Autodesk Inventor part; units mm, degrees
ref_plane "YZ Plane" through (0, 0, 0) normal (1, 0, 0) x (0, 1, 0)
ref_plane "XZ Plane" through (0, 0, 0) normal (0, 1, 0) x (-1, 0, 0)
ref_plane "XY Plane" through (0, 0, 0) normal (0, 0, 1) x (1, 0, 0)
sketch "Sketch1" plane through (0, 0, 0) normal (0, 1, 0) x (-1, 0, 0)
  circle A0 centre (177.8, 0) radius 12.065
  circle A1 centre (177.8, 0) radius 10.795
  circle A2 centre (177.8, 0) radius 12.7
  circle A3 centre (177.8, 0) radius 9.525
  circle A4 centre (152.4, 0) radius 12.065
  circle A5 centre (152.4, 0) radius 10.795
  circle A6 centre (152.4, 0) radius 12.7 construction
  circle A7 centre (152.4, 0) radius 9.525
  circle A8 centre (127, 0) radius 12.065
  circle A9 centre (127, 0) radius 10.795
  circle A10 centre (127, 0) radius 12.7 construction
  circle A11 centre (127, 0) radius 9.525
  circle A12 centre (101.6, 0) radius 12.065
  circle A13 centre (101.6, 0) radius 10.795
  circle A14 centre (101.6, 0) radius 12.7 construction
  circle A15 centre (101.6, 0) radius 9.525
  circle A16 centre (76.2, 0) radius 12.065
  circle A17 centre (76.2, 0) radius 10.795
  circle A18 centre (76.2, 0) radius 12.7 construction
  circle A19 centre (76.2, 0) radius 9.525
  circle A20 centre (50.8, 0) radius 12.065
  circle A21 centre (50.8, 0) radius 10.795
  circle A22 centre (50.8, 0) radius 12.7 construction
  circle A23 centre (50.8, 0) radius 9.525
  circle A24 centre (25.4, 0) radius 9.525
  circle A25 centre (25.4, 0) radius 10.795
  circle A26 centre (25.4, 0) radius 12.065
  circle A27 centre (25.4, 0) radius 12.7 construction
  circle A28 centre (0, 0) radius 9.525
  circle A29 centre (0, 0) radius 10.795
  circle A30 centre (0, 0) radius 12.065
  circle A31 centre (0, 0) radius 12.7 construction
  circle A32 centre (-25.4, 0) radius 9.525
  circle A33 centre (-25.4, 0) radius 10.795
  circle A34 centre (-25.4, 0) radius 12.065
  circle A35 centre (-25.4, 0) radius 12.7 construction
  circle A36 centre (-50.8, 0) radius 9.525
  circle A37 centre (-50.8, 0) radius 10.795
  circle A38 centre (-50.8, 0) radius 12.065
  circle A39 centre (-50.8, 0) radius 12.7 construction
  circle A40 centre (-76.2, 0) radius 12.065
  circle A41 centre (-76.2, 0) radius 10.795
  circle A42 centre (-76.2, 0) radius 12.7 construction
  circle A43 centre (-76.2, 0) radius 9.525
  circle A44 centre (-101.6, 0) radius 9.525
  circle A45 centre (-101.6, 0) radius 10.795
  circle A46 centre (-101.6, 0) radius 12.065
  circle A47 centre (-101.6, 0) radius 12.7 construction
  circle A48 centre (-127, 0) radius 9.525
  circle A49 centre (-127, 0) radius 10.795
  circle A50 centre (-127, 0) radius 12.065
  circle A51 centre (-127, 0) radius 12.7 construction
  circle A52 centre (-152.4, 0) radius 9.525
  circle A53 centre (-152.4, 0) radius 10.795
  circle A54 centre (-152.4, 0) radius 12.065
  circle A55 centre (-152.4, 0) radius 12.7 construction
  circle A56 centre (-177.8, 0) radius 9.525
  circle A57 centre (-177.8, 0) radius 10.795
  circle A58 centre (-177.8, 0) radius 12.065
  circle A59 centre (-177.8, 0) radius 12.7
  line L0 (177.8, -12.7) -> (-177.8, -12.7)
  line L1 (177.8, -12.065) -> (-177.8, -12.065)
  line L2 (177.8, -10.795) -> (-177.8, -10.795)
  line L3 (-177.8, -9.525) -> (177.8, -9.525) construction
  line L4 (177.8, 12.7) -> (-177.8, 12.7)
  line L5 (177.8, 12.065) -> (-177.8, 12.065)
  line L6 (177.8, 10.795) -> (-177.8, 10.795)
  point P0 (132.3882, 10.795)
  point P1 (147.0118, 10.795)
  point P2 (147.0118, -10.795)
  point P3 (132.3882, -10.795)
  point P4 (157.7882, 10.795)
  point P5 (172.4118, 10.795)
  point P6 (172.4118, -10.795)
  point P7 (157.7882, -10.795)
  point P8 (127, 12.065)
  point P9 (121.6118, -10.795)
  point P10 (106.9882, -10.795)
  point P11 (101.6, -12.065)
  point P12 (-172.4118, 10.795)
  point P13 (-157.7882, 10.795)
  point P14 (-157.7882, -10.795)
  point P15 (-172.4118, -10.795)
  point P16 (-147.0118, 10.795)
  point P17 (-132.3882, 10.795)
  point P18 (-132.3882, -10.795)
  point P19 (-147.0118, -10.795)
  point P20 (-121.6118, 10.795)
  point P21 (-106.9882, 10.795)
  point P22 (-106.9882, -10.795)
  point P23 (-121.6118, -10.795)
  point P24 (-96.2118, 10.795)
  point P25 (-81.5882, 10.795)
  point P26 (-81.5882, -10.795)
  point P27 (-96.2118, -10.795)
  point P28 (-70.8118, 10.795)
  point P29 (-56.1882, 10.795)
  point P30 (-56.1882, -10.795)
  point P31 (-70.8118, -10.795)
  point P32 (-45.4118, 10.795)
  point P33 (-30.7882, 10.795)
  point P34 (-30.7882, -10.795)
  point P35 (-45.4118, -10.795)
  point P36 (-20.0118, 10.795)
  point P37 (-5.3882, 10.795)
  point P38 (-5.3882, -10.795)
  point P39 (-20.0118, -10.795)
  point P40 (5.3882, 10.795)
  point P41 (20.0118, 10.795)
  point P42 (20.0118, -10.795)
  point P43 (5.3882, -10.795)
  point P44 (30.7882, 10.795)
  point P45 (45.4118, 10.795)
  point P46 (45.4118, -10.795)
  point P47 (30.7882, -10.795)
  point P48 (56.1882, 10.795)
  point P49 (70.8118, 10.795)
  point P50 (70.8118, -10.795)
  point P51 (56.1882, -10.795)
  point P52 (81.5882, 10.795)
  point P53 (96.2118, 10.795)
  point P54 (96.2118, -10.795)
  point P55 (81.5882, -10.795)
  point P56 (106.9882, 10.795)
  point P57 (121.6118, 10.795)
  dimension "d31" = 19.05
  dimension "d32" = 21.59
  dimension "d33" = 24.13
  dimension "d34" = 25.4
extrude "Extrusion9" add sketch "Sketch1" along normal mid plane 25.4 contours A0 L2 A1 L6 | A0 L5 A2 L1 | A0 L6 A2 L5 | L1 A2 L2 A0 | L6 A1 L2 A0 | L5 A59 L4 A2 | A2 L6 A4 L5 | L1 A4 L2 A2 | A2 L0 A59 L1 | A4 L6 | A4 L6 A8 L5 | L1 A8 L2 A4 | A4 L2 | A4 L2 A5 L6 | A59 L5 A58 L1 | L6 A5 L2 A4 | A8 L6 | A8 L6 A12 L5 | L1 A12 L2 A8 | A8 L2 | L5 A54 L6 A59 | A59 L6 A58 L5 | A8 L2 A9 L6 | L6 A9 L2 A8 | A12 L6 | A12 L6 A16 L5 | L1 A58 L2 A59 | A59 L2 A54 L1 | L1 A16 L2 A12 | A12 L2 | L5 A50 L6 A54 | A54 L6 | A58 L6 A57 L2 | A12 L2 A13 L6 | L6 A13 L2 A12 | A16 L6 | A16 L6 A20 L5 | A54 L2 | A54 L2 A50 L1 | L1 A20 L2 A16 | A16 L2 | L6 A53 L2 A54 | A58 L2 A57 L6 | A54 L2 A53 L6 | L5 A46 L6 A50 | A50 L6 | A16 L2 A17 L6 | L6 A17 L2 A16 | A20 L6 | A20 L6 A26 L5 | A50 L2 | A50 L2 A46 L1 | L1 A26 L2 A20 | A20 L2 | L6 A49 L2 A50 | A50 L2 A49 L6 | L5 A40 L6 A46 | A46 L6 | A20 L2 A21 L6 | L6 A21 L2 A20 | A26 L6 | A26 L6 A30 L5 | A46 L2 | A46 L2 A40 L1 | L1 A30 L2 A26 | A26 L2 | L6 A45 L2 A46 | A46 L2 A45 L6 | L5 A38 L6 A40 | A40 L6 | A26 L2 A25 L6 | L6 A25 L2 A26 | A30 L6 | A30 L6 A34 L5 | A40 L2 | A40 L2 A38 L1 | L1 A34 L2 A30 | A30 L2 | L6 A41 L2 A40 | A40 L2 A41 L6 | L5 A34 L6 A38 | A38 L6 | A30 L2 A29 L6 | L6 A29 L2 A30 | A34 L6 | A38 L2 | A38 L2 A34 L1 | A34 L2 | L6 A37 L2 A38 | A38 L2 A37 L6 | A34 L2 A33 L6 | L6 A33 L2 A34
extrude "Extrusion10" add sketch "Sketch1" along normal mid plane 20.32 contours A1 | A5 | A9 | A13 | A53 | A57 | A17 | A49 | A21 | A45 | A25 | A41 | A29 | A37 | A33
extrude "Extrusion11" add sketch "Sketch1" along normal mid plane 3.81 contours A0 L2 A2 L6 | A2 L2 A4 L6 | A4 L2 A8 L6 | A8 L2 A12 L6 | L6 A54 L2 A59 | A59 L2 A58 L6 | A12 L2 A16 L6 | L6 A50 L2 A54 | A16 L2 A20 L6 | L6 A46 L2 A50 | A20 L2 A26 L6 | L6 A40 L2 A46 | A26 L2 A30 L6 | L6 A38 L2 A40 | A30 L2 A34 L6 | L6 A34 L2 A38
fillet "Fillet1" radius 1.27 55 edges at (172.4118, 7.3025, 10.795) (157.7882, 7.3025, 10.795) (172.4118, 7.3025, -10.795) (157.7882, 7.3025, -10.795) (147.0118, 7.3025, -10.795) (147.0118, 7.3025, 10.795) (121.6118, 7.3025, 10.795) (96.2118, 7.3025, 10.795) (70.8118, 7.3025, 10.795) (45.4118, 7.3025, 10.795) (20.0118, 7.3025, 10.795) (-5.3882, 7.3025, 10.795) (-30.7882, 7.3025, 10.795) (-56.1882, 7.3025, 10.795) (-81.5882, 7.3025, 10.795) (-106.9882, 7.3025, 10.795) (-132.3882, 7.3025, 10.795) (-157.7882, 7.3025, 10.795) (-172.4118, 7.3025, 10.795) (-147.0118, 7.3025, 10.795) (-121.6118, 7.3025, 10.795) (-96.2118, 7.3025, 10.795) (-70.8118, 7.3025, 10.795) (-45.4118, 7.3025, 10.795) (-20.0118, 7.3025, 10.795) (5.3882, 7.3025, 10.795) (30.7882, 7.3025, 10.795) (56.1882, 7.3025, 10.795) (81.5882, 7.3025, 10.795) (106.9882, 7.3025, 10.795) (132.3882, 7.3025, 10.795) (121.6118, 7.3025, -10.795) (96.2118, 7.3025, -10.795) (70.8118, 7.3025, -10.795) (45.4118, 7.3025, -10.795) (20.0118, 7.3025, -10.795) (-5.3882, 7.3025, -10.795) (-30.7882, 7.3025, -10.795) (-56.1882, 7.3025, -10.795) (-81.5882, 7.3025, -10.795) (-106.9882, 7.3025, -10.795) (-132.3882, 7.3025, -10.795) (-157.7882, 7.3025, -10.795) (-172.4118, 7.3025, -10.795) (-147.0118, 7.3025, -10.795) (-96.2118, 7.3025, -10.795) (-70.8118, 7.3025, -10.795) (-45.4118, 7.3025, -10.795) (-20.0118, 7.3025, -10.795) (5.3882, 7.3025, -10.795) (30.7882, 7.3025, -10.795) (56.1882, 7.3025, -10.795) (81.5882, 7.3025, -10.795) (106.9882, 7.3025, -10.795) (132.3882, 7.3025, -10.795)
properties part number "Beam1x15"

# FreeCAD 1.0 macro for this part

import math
import FreeCAD as App
import Part
import Sketcher
from FreeCAD import Vector
Q = App.Units.Quantity


def edges_at(feature, points):
    """Names of the edges that pass closest to the given points."""
    edges = feature.Shape.Edges
    near = lambda p: min(range(len(edges)), key=lambda i: edges[i].distToShape(Part.Vertex(*p))[0])
    return sorted({f"Edge{near(p) + 1}" for p in points})

doc = App.newDocument("Part")
params = doc.addObject("Spreadsheet::Sheet", "Params")
for row, (alias, value) in enumerate([
    ("sketch1_radius", "0.5 in"),
    ("sketch1_diameter", "0.85 in"),
    ("sketch1_radius2", "0.475 in"),
    ("pad1_length", "1 in"),
    ("sketch2_diameter", "0.85 in"),
    ("sketch2_diameter2", "0.75 in"),
    ("pad2_length", "0.8 in"),
    ("sketch3_radius", "0.475 in"),
    ("pad3_length", "0.15 in"),
    ("fillet_radius", "0.05 in"),
], start=1):
    params.set(f"A{row}", alias)
    params.set(f"B{row}", "=" + value)
    params.setAlias(f"B{row}", alias)

body = doc.addObject("PartDesign::Body", "Body")

# Sketch on XZ plane
sketch1 = body.newObject("Sketcher::SketchObject", "Sketch")
sketch1.AttachmentSupport = (doc.getObject("XZ_Plane"), [""])
sketch1.MapMode = "FlatFace"
sketch1.addGeometry([
    Part.LineSegment(Vector(-178, 13, 0), Vector(178, 13, 0)),  # 0
    Part.ArcOfCircle(Part.Circle(Vector(178, 0, 0), Vector(0, 0, 1), 13), math.radians(-90), math.radians(90)),  # 1
    Part.LineSegment(Vector(178, -13, 0), Vector(-178, -13, 0)),  # 2
    Part.ArcOfCircle(Part.Circle(Vector(-178, 0, 0), Vector(0, 0, 1), 13), math.radians(90), math.radians(270)),  # 3
    Part.Circle(Vector(-178, 0, 0), Vector(0, 0, 1), 11),  # 4
    Part.LineSegment(Vector(-172, -11, 0), Vector(-158, -11, 0)),  # 5
    Part.ArcOfCircle(Part.Circle(Vector(-152, 0, 0), Vector(0, 0, 1), 12), math.radians(117), math.radians(243)),  # 6
    Part.LineSegment(Vector(-158, 11, 0), Vector(-172, 11, 0)),  # 7
    Part.ArcOfCircle(Part.Circle(Vector(-178, 0, 0), Vector(0, 0, 1), 12), math.radians(-63), math.radians(63)),  # 8
    Part.LineSegment(Vector(-132, 11, 0), Vector(-147, 11, 0)),  # 9
    Part.ArcOfCircle(Part.Circle(Vector(-152, 0, 0), Vector(0, 0, 1), 12), math.radians(-63), math.radians(63)),  # 10
    Part.LineSegment(Vector(-147, -11, 0), Vector(-132, -11, 0)),  # 11
    Part.ArcOfCircle(Part.Circle(Vector(-127, 0, 0), Vector(0, 0, 1), 12), math.radians(117), math.radians(243)),  # 12
    Part.LineSegment(Vector(-107, 11, 0), Vector(-122, 11, 0)),  # 13
    Part.ArcOfCircle(Part.Circle(Vector(-127, 0, 0), Vector(0, 0, 1), 12), math.radians(-63), math.radians(63)),  # 14
    Part.LineSegment(Vector(-122, -11, 0), Vector(-107, -11, 0)),  # 15
    Part.ArcOfCircle(Part.Circle(Vector(-102, 0, 0), Vector(0, 0, 1), 12), math.radians(117), math.radians(243)),  # 16
    Part.LineSegment(Vector(-82, 11, 0), Vector(-96, 11, 0)),  # 17
    Part.ArcOfCircle(Part.Circle(Vector(-102, 0, 0), Vector(0, 0, 1), 12), math.radians(-63), math.radians(63)),  # 18
    Part.LineSegment(Vector(-96, -11, 0), Vector(-82, -11, 0)),  # 19
    Part.ArcOfCircle(Part.Circle(Vector(-76, 0, 0), Vector(0, 0, 1), 12), math.radians(117), math.radians(243)),  # 20
    Part.LineSegment(Vector(-56, 11, 0), Vector(-71, 11, 0)),  # 21
    Part.ArcOfCircle(Part.Circle(Vector(-76, 0, 0), Vector(0, 0, 1), 12), math.radians(-63), math.radians(63)),  # 22
    Part.LineSegment(Vector(-71, -11, 0), Vector(-56, -11, 0)),  # 23
    Part.ArcOfCircle(Part.Circle(Vector(-51, 0, 0), Vector(0, 0, 1), 12), math.radians(117), math.radians(243)),  # 24
    Part.LineSegment(Vector(-31, 11, 0), Vector(-45, 11, 0)),  # 25
    Part.ArcOfCircle(Part.Circle(Vector(-51, 0, 0), Vector(0, 0, 1), 12), math.radians(-63), math.radians(63)),  # 26
    Part.LineSegment(Vector(-45, -11, 0), Vector(-31, -11, 0)),  # 27
    Part.ArcOfCircle(Part.Circle(Vector(-25, 0, 0), Vector(0, 0, 1), 12), math.radians(117), math.radians(243)),  # 28
    Part.LineSegment(Vector(-5, 11, 0), Vector(-20, 11, 0)),  # 29
    Part.ArcOfCircle(Part.Circle(Vector(-25, 0, 0), Vector(0, 0, 1), 12), math.radians(-63), math.radians(63)),  # 30
    Part.LineSegment(Vector(-20, -11, 0), Vector(-5, -11, 0)),  # 31
    Part.ArcOfCircle(Part.Circle(Vector(0, 0, 0), Vector(0, 0, 1), 12), math.radians(117), math.radians(243)),  # 32
    Part.LineSegment(Vector(20, 11, 0), Vector(5, 11, 0)),  # 33
    Part.ArcOfCircle(Part.Circle(Vector(0, 0, 0), Vector(0, 0, 1), 12), math.radians(-63), math.radians(63)),  # 34
    Part.LineSegment(Vector(5, -11, 0), Vector(20, -11, 0)),  # 35
    Part.ArcOfCircle(Part.Circle(Vector(25, 0, 0), Vector(0, 0, 1), 12), math.radians(117), math.radians(243)),  # 36
    Part.LineSegment(Vector(45, 11, 0), Vector(31, 11, 0)),  # 37
    Part.ArcOfCircle(Part.Circle(Vector(25, 0, 0), Vector(0, 0, 1), 12), math.radians(-63), math.radians(63)),  # 38
    Part.LineSegment(Vector(31, -11, 0), Vector(45, -11, 0)),  # 39
    Part.ArcOfCircle(Part.Circle(Vector(51, 0, 0), Vector(0, 0, 1), 12), math.radians(117), math.radians(243)),  # 40
    Part.LineSegment(Vector(71, 11, 0), Vector(56, 11, 0)),  # 41
    Part.ArcOfCircle(Part.Circle(Vector(51, 0, 0), Vector(0, 0, 1), 12), math.radians(-63), math.radians(63)),  # 42
    Part.LineSegment(Vector(56, -11, 0), Vector(71, -11, 0)),  # 43
    Part.ArcOfCircle(Part.Circle(Vector(76, 0, 0), Vector(0, 0, 1), 12), math.radians(117), math.radians(243)),  # 44
    Part.LineSegment(Vector(96, 11, 0), Vector(82, 11, 0)),  # 45
    Part.ArcOfCircle(Part.Circle(Vector(76, 0, 0), Vector(0, 0, 1), 12), math.radians(-63), math.radians(63)),  # 46
    Part.LineSegment(Vector(82, -11, 0), Vector(96, -11, 0)),  # 47
    Part.ArcOfCircle(Part.Circle(Vector(102, 0, 0), Vector(0, 0, 1), 12), math.radians(117), math.radians(243)),  # 48
    Part.LineSegment(Vector(122, 11, 0), Vector(107, 11, 0)),  # 49
    Part.ArcOfCircle(Part.Circle(Vector(102, 0, 0), Vector(0, 0, 1), 12), math.radians(-63), math.radians(63)),  # 50
    Part.LineSegment(Vector(107, -11, 0), Vector(122, -11, 0)),  # 51
    Part.ArcOfCircle(Part.Circle(Vector(127, 0, 0), Vector(0, 0, 1), 12), math.radians(117), math.radians(243)),  # 52
    Part.LineSegment(Vector(147, 11, 0), Vector(132, 11, 0)),  # 53
    Part.ArcOfCircle(Part.Circle(Vector(127, 0, 0), Vector(0, 0, 1), 12), math.radians(-63), math.radians(63)),  # 54
    Part.LineSegment(Vector(132, -11, 0), Vector(147, -11, 0)),  # 55
    Part.ArcOfCircle(Part.Circle(Vector(152, 0, 0), Vector(0, 0, 1), 12), math.radians(117), math.radians(243)),  # 56
    Part.ArcOfCircle(Part.Circle(Vector(152, 0, 0), Vector(0, 0, 1), 12), math.radians(-63), math.radians(63)),  # 57
    Part.LineSegment(Vector(158, -11, 0), Vector(172, -11, 0)),  # 58
    Part.ArcOfCircle(Part.Circle(Vector(178, 0, 0), Vector(0, 0, 1), 12), math.radians(117), math.radians(243)),  # 59
    Part.LineSegment(Vector(172, 11, 0), Vector(158, 11, 0)),  # 60
    Part.Circle(Vector(178, 0, 0), Vector(0, 0, 1), 11),  # 61
    Part.Circle(Vector(-152, 0, 0), Vector(0, 0, 1), 11),  # 62
    Part.Circle(Vector(-127, 0, 0), Vector(0, 0, 1), 11),  # 63
    Part.Circle(Vector(-102, 0, 0), Vector(0, 0, 1), 11),  # 64
    Part.Circle(Vector(-76, 0, 0), Vector(0, 0, 1), 11),  # 65
    Part.Circle(Vector(-51, 0, 0), Vector(0, 0, 1), 11),  # 66
    Part.Circle(Vector(-25, 0, 0), Vector(0, 0, 1), 11),  # 67
    Part.Circle(Vector(0, 0, 0), Vector(0, 0, 1), 11),  # 68
    Part.Circle(Vector(25, 0, 0), Vector(0, 0, 1), 11),  # 69
    Part.Circle(Vector(51, 0, 0), Vector(0, 0, 1), 11),  # 70
    Part.Circle(Vector(76, 0, 0), Vector(0, 0, 1), 11),  # 71
    Part.Circle(Vector(102, 0, 0), Vector(0, 0, 1), 11),  # 72
    Part.Circle(Vector(127, 0, 0), Vector(0, 0, 1), 11),  # 73
    Part.Circle(Vector(152, 0, 0), Vector(0, 0, 1), 11),  # 74
], False)
sketch1.addConstraint([
    Sketcher.Constraint("Tangent", 0, 2, 1, 2),
    Sketcher.Constraint("Tangent", 1, 1, 2, 1),
    Sketcher.Constraint("Tangent", 2, 2, 3, 2),
    Sketcher.Constraint("Tangent", 3, 1, 0, 1),
    Sketcher.Constraint("Coincident", 5, 2, 6, 2),
    Sketcher.Constraint("Coincident", 6, 1, 7, 1),
    Sketcher.Constraint("Coincident", 7, 2, 8, 2),
    Sketcher.Constraint("Coincident", 8, 1, 5, 1),
    Sketcher.Constraint("Coincident", 9, 2, 10, 2),
    Sketcher.Constraint("Coincident", 10, 1, 11, 1),
    Sketcher.Constraint("Coincident", 11, 2, 12, 2),
    Sketcher.Constraint("Coincident", 12, 1, 9, 1),
    Sketcher.Constraint("Coincident", 13, 2, 14, 2),
    Sketcher.Constraint("Coincident", 14, 1, 15, 1),
    Sketcher.Constraint("Coincident", 15, 2, 16, 2),
    Sketcher.Constraint("Coincident", 16, 1, 13, 1),
    Sketcher.Constraint("Coincident", 17, 2, 18, 2),
    Sketcher.Constraint("Coincident", 18, 1, 19, 1),
    Sketcher.Constraint("Coincident", 19, 2, 20, 2),
    Sketcher.Constraint("Coincident", 20, 1, 17, 1),
    Sketcher.Constraint("Coincident", 21, 2, 22, 2),
    Sketcher.Constraint("Coincident", 22, 1, 23, 1),
    Sketcher.Constraint("Coincident", 23, 2, 24, 2),
    Sketcher.Constraint("Coincident", 24, 1, 21, 1),
    Sketcher.Constraint("Coincident", 25, 2, 26, 2),
    Sketcher.Constraint("Coincident", 26, 1, 27, 1),
    Sketcher.Constraint("Coincident", 27, 2, 28, 2),
    Sketcher.Constraint("Coincident", 28, 1, 25, 1),
    Sketcher.Constraint("Coincident", 29, 2, 30, 2),
    Sketcher.Constraint("Coincident", 30, 1, 31, 1),
    Sketcher.Constraint("Coincident", 31, 2, 32, 2),
    Sketcher.Constraint("Coincident", 32, 1, 29, 1),
    Sketcher.Constraint("Coincident", 33, 2, 34, 2),
    Sketcher.Constraint("Coincident", 34, 1, 35, 1),
    Sketcher.Constraint("Coincident", 35, 2, 36, 2),
    Sketcher.Constraint("Coincident", 36, 1, 33, 1),
    Sketcher.Constraint("Coincident", 37, 2, 38, 2),
    Sketcher.Constraint("Coincident", 38, 1, 39, 1),
    Sketcher.Constraint("Coincident", 39, 2, 40, 2),
    Sketcher.Constraint("Coincident", 40, 1, 37, 1),
    Sketcher.Constraint("Coincident", 41, 2, 42, 2),
    Sketcher.Constraint("Coincident", 42, 1, 43, 1),
    Sketcher.Constraint("Coincident", 43, 2, 44, 2),
    Sketcher.Constraint("Coincident", 44, 1, 41, 1),
    Sketcher.Constraint("Coincident", 45, 2, 46, 2),
    Sketcher.Constraint("Coincident", 46, 1, 47, 1),
    Sketcher.Constraint("Coincident", 47, 2, 48, 2),
    Sketcher.Constraint("Coincident", 48, 1, 45, 1),
    Sketcher.Constraint("Coincident", 49, 2, 50, 2),
    Sketcher.Constraint("Coincident", 50, 1, 51, 1),
    Sketcher.Constraint("Coincident", 51, 2, 52, 2),
    Sketcher.Constraint("Coincident", 52, 1, 49, 1),
    Sketcher.Constraint("Coincident", 53, 2, 54, 2),
    Sketcher.Constraint("Coincident", 54, 1, 55, 1),
    Sketcher.Constraint("Coincident", 55, 2, 56, 2),
    Sketcher.Constraint("Coincident", 56, 1, 53, 1),
    Sketcher.Constraint("Coincident", 57, 1, 58, 1),
    Sketcher.Constraint("Coincident", 58, 2, 59, 2),
    Sketcher.Constraint("Coincident", 59, 1, 60, 1),
    Sketcher.Constraint("Coincident", 60, 2, 57, 2),
    Sketcher.Constraint("Horizontal", 0),
    Sketcher.Constraint("Horizontal", 2),
    Sketcher.Constraint("Horizontal", 5),
    Sketcher.Constraint("Horizontal", 7),
    Sketcher.Constraint("Horizontal", 9),
    Sketcher.Constraint("Horizontal", 11),
    Sketcher.Constraint("Horizontal", 13),
    Sketcher.Constraint("Horizontal", 15),
    Sketcher.Constraint("Horizontal", 17),
    Sketcher.Constraint("Horizontal", 19),
    Sketcher.Constraint("Horizontal", 21),
    Sketcher.Constraint("Horizontal", 23),
    Sketcher.Constraint("Horizontal", 25),
    Sketcher.Constraint("Horizontal", 27),
    Sketcher.Constraint("Horizontal", 29),
    Sketcher.Constraint("Horizontal", 31),
    Sketcher.Constraint("Horizontal", 33),
    Sketcher.Constraint("Horizontal", 35),
    Sketcher.Constraint("Horizontal", 37),
    Sketcher.Constraint("Horizontal", 39),
    Sketcher.Constraint("Horizontal", 41),
    Sketcher.Constraint("Horizontal", 43),
    Sketcher.Constraint("Horizontal", 45),
    Sketcher.Constraint("Horizontal", 47),
    Sketcher.Constraint("Horizontal", 49),
    Sketcher.Constraint("Horizontal", 51),
    Sketcher.Constraint("Horizontal", 53),
    Sketcher.Constraint("Horizontal", 55),
    Sketcher.Constraint("Horizontal", 58),
    Sketcher.Constraint("Horizontal", 60),
    Sketcher.Constraint("Coincident", 32, 3, -1, 1),
    Sketcher.Constraint("Coincident", 34, 3, -1, 1),
    Sketcher.Constraint("Coincident", 68, 3, -1, 1),
    Sketcher.Constraint("Coincident", 4, 3, 3, 3),
    Sketcher.Constraint("Coincident", 8, 3, 3, 3),
    Sketcher.Constraint("Coincident", 10, 3, 6, 3),
    Sketcher.Constraint("Coincident", 14, 3, 12, 3),
    Sketcher.Constraint("Coincident", 18, 3, 16, 3),
    Sketcher.Constraint("Coincident", 22, 3, 20, 3),
    Sketcher.Constraint("Coincident", 26, 3, 24, 3),
    Sketcher.Constraint("Coincident", 30, 3, 28, 3),
    Sketcher.Constraint("Coincident", 38, 3, 36, 3),
    Sketcher.Constraint("Coincident", 42, 3, 40, 3),
    Sketcher.Constraint("Coincident", 46, 3, 44, 3),
    Sketcher.Constraint("Coincident", 50, 3, 48, 3),
    Sketcher.Constraint("Coincident", 54, 3, 52, 3),
    Sketcher.Constraint("Coincident", 57, 3, 56, 3),
    Sketcher.Constraint("Coincident", 59, 3, 1, 3),
    Sketcher.Constraint("Coincident", 61, 3, 1, 3),
    Sketcher.Constraint("Coincident", 62, 3, 6, 3),
    Sketcher.Constraint("Coincident", 63, 3, 12, 3),
    Sketcher.Constraint("Coincident", 64, 3, 16, 3),
    Sketcher.Constraint("Coincident", 65, 3, 20, 3),
    Sketcher.Constraint("Coincident", 66, 3, 24, 3),
    Sketcher.Constraint("Coincident", 67, 3, 28, 3),
    Sketcher.Constraint("Coincident", 69, 3, 36, 3),
    Sketcher.Constraint("Coincident", 70, 3, 40, 3),
    Sketcher.Constraint("Coincident", 71, 3, 44, 3),
    Sketcher.Constraint("Coincident", 72, 3, 48, 3),
    Sketcher.Constraint("Coincident", 73, 3, 52, 3),
    Sketcher.Constraint("Coincident", 74, 3, 56, 3),
    Sketcher.Constraint("Equal", 6, 8),
    Sketcher.Constraint("Equal", 8, 10),
    Sketcher.Constraint("Equal", 10, 12),
    Sketcher.Constraint("Equal", 12, 14),
    Sketcher.Constraint("Equal", 14, 16),
    Sketcher.Constraint("Equal", 16, 18),
    Sketcher.Constraint("Equal", 18, 20),
    Sketcher.Constraint("Equal", 20, 22),
    Sketcher.Constraint("Equal", 22, 24),
    Sketcher.Constraint("Equal", 24, 26),
    Sketcher.Constraint("Equal", 26, 28),
    Sketcher.Constraint("Equal", 28, 30),
    Sketcher.Constraint("Equal", 30, 32),
    Sketcher.Constraint("Equal", 32, 34),
    Sketcher.Constraint("Equal", 34, 36),
    Sketcher.Constraint("Equal", 36, 38),
    Sketcher.Constraint("Equal", 38, 40),
    Sketcher.Constraint("Equal", 40, 42),
    Sketcher.Constraint("Equal", 42, 44),
    Sketcher.Constraint("Equal", 44, 46),
    Sketcher.Constraint("Equal", 46, 48),
    Sketcher.Constraint("Equal", 48, 50),
    Sketcher.Constraint("Equal", 50, 52),
    Sketcher.Constraint("Equal", 52, 54),
    Sketcher.Constraint("Equal", 54, 56),
    Sketcher.Constraint("Equal", 56, 57),
    Sketcher.Constraint("Equal", 57, 59),
    Sketcher.Constraint("Equal", 4, 61),
    Sketcher.Constraint("Equal", 61, 62),
    Sketcher.Constraint("Equal", 62, 63),
    Sketcher.Constraint("Equal", 63, 64),
    Sketcher.Constraint("Equal", 64, 65),
    Sketcher.Constraint("Equal", 65, 66),
    Sketcher.Constraint("Equal", 66, 67),
    Sketcher.Constraint("Equal", 67, 68),
    Sketcher.Constraint("Equal", 68, 69),
    Sketcher.Constraint("Equal", 69, 70),
    Sketcher.Constraint("Equal", 70, 71),
    Sketcher.Constraint("Equal", 71, 72),
    Sketcher.Constraint("Equal", 72, 73),
    Sketcher.Constraint("Equal", 73, 74),
    Sketcher.Constraint("Symmetric", 1, 3, 3, 3, -1, 1),
    Sketcher.Constraint("Symmetric", 28, 3, 36, 3, -1, 1),
    Sketcher.Constraint("Symmetric", 24, 3, 40, 3, -1, 1),
    Sketcher.Constraint("Symmetric", 20, 3, 44, 3, -1, 1),
    Sketcher.Constraint("Symmetric", 16, 3, 48, 3, -1, 1),
    Sketcher.Constraint("Symmetric", 12, 3, 52, 3, -1, 1),
    Sketcher.Constraint("Symmetric", 6, 3, 56, 3, -1, 1),
    Sketcher.Constraint("Symmetric", 30, 1, 35, 2, -2),
    Sketcher.Constraint("Symmetric", 26, 1, 39, 2, -2),
    Sketcher.Constraint("Symmetric", 22, 1, 43, 2, -2),
    Sketcher.Constraint("Symmetric", 18, 1, 47, 2, -2),
    Sketcher.Constraint("Symmetric", 14, 1, 51, 2, -2),
    Sketcher.Constraint("Symmetric", 10, 1, 55, 2, -2),
    Sketcher.Constraint("Horizontal", 7, 2, 9, 2),
    Sketcher.Constraint("Horizontal", 8, 1, 10, 1),
    Sketcher.Constraint("Horizontal", 12, 1, 13, 2),
    Sketcher.Constraint("Horizontal", 11, 2, 14, 1),
    Sketcher.Constraint("Horizontal", 16, 1, 17, 2),
    Sketcher.Constraint("Horizontal", 15, 2, 18, 1),
    Sketcher.Constraint("Horizontal", 20, 1, 21, 2),
    Sketcher.Constraint("Horizontal", 19, 2, 22, 1),
    Sketcher.Constraint("Horizontal", 24, 1, 25, 2),
    Sketcher.Constraint("Horizontal", 23, 2, 26, 1),
    Sketcher.Constraint("Horizontal", 28, 1, 29, 2),
    Sketcher.Constraint("Horizontal", 27, 2, 30, 1),
    Sketcher.Constraint("Horizontal", 32, 1, 33, 2),
    Sketcher.Constraint("Horizontal", 36, 1, 37, 2),
    Sketcher.Constraint("Horizontal", 40, 1, 41, 2),
    Sketcher.Constraint("Horizontal", 44, 1, 45, 2),
    Sketcher.Constraint("Horizontal", 48, 1, 49, 2),
    Sketcher.Constraint("Horizontal", 52, 1, 53, 2),
    Sketcher.Constraint("Horizontal", 55, 2, 57, 1),
    Sketcher.Constraint("Horizontal", 56, 1, 59, 1),
    Sketcher.Constraint("Vertical", 5, 2, 6, 1),
    Sketcher.Constraint("Equal", 7, 9),
    Sketcher.Constraint("Equal", 11, 13),
    Sketcher.Constraint("Equal", 15, 17),
    Sketcher.Constraint("Equal", 19, 21),
    Sketcher.Constraint("Equal", 23, 25),
    Sketcher.Constraint("Equal", 27, 29),
    Sketcher.Constraint("Radius", 1, Q("0.5 in")),
    Sketcher.Constraint("Diameter", 4, Q("0.85 in")),
    Sketcher.Constraint("DistanceX", 28, 3, -1, 1, Q("1 in")),
    Sketcher.Constraint("Radius", 6, Q("0.475 in")),
    Sketcher.Constraint("DistanceY", 5, 2, -1, 1, Q("0.425 in")),
])
sketch1.setExpression("Constraints[202]", "Params.sketch1_radius")
sketch1.setExpression("Constraints[203]", "Params.sketch1_diameter")
sketch1.setExpression("Constraints[205]", "Params.sketch1_radius2")
pad1 = body.newObject("PartDesign::Pad", "Pad")
pad1.Profile = sketch1
pad1.setExpression("Length", "Params.pad1_length")
pad1.Midplane = True

# Sketch on XZ plane
sketch2 = body.newObject("Sketcher::SketchObject", "Sketch001")
sketch2.AttachmentSupport = (doc.getObject("XZ_Plane"), [""])
sketch2.MapMode = "FlatFace"
sketch2.addGeometry([
    Part.Circle(Vector(-178, 0, 0), Vector(0, 0, 1), 11),  # 0
    Part.Circle(Vector(-178, 0, 0), Vector(0, 0, 1), 10),  # 1
    Part.Circle(Vector(-152, 0, 0), Vector(0, 0, 1), 11),  # 2
    Part.Circle(Vector(-152, 0, 0), Vector(0, 0, 1), 10),  # 3
    Part.Circle(Vector(-127, 0, 0), Vector(0, 0, 1), 11),  # 4
    Part.Circle(Vector(-127, 0, 0), Vector(0, 0, 1), 10),  # 5
    Part.Circle(Vector(-102, 0, 0), Vector(0, 0, 1), 11),  # 6
    Part.Circle(Vector(-102, 0, 0), Vector(0, 0, 1), 10),  # 7
    Part.Circle(Vector(152, 0, 0), Vector(0, 0, 1), 11),  # 8
    Part.Circle(Vector(152, 0, 0), Vector(0, 0, 1), 10),  # 9
    Part.Circle(Vector(178, 0, 0), Vector(0, 0, 1), 11),  # 10
    Part.Circle(Vector(178, 0, 0), Vector(0, 0, 1), 10),  # 11
    Part.Circle(Vector(-76, 0, 0), Vector(0, 0, 1), 11),  # 12
    Part.Circle(Vector(-76, 0, 0), Vector(0, 0, 1), 10),  # 13
    Part.Circle(Vector(127, 0, 0), Vector(0, 0, 1), 11),  # 14
    Part.Circle(Vector(127, 0, 0), Vector(0, 0, 1), 10),  # 15
    Part.Circle(Vector(-51, 0, 0), Vector(0, 0, 1), 11),  # 16
    Part.Circle(Vector(-51, 0, 0), Vector(0, 0, 1), 10),  # 17
    Part.Circle(Vector(102, 0, 0), Vector(0, 0, 1), 11),  # 18
    Part.Circle(Vector(102, 0, 0), Vector(0, 0, 1), 10),  # 19
    Part.Circle(Vector(-25, 0, 0), Vector(0, 0, 1), 11),  # 20
    Part.Circle(Vector(-25, 0, 0), Vector(0, 0, 1), 10),  # 21
    Part.Circle(Vector(76, 0, 0), Vector(0, 0, 1), 11),  # 22
    Part.Circle(Vector(76, 0, 0), Vector(0, 0, 1), 10),  # 23
    Part.Circle(Vector(0, 0, 0), Vector(0, 0, 1), 11),  # 24
    Part.Circle(Vector(0, 0, 0), Vector(0, 0, 1), 10),  # 25
    Part.Circle(Vector(51, 0, 0), Vector(0, 0, 1), 11),  # 26
    Part.Circle(Vector(51, 0, 0), Vector(0, 0, 1), 10),  # 27
    Part.Circle(Vector(25, 0, 0), Vector(0, 0, 1), 11),  # 28
    Part.Circle(Vector(25, 0, 0), Vector(0, 0, 1), 10),  # 29
], False)
sketch2.addConstraint([
    Sketcher.Constraint("Coincident", 24, 3, -1, 1),
    Sketcher.Constraint("Coincident", 25, 3, -1, 1),
    Sketcher.Constraint("Coincident", 1, 3, 0, 3),
    Sketcher.Constraint("Coincident", 3, 3, 2, 3),
    Sketcher.Constraint("Coincident", 5, 3, 4, 3),
    Sketcher.Constraint("Coincident", 7, 3, 6, 3),
    Sketcher.Constraint("Coincident", 9, 3, 8, 3),
    Sketcher.Constraint("Coincident", 11, 3, 10, 3),
    Sketcher.Constraint("Coincident", 13, 3, 12, 3),
    Sketcher.Constraint("Coincident", 15, 3, 14, 3),
    Sketcher.Constraint("Coincident", 17, 3, 16, 3),
    Sketcher.Constraint("Coincident", 19, 3, 18, 3),
    Sketcher.Constraint("Coincident", 21, 3, 20, 3),
    Sketcher.Constraint("Coincident", 23, 3, 22, 3),
    Sketcher.Constraint("Coincident", 27, 3, 26, 3),
    Sketcher.Constraint("Coincident", 29, 3, 28, 3),
    Sketcher.Constraint("Equal", 0, 2),
    Sketcher.Constraint("Equal", 1, 3),
    Sketcher.Constraint("Equal", 2, 4),
    Sketcher.Constraint("Equal", 3, 5),
    Sketcher.Constraint("Equal", 4, 6),
    Sketcher.Constraint("Equal", 5, 7),
    Sketcher.Constraint("Equal", 6, 8),
    Sketcher.Constraint("Equal", 7, 9),
    Sketcher.Constraint("Equal", 8, 10),
    Sketcher.Constraint("Equal", 9, 11),
    Sketcher.Constraint("Equal", 10, 12),
    Sketcher.Constraint("Equal", 11, 13),
    Sketcher.Constraint("Equal", 12, 14),
    Sketcher.Constraint("Equal", 13, 15),
    Sketcher.Constraint("Equal", 14, 16),
    Sketcher.Constraint("Equal", 15, 17),
    Sketcher.Constraint("Equal", 16, 18),
    Sketcher.Constraint("Equal", 17, 19),
    Sketcher.Constraint("Equal", 18, 20),
    Sketcher.Constraint("Equal", 19, 21),
    Sketcher.Constraint("Equal", 20, 22),
    Sketcher.Constraint("Equal", 21, 23),
    Sketcher.Constraint("Equal", 22, 24),
    Sketcher.Constraint("Equal", 23, 25),
    Sketcher.Constraint("Equal", 24, 26),
    Sketcher.Constraint("Equal", 25, 27),
    Sketcher.Constraint("Equal", 26, 28),
    Sketcher.Constraint("Equal", 27, 29),
    Sketcher.Constraint("Symmetric", 2, 3, 8, 3, -1, 1),
    Sketcher.Constraint("Symmetric", 0, 3, 10, 3, -1, 1),
    Sketcher.Constraint("Symmetric", 4, 3, 14, 3, -1, 1),
    Sketcher.Constraint("Symmetric", 6, 3, 18, 3, -1, 1),
    Sketcher.Constraint("Symmetric", 12, 3, 22, 3, -1, 1),
    Sketcher.Constraint("Symmetric", 16, 3, 26, 3, -1, 1),
    Sketcher.Constraint("Symmetric", 20, 3, 28, 3, -1, 1),
    Sketcher.Constraint("PointOnObject", 0, 3, -1),
    Sketcher.Constraint("PointOnObject", 2, 3, -1),
    Sketcher.Constraint("PointOnObject", 4, 3, -1),
    Sketcher.Constraint("PointOnObject", 6, 3, -1),
    Sketcher.Constraint("PointOnObject", 12, 3, -1),
    Sketcher.Constraint("PointOnObject", 16, 3, -1),
    Sketcher.Constraint("PointOnObject", 20, 3, -1),
    Sketcher.Constraint("Diameter", 0, Q("0.85 in")),
    Sketcher.Constraint("Diameter", 1, Q("0.75 in")),
    Sketcher.Constraint("DistanceX", 20, 3, -1, 1, Q("1 in")),
    Sketcher.Constraint("DistanceX", 0, 3, 2, 3, Q("1 in")),
    Sketcher.Constraint("DistanceX", 2, 3, 4, 3, Q("1 in")),
    Sketcher.Constraint("DistanceX", 4, 3, 6, 3, Q("1 in")),
    Sketcher.Constraint("DistanceX", 6, 3, 12, 3, Q("1 in")),
    Sketcher.Constraint("DistanceX", 12, 3, 16, 3, Q("1 in")),
    Sketcher.Constraint("DistanceX", 16, 3, 20, 3, Q("1 in")),
])
sketch2.setExpression("Constraints[58]", "Params.sketch2_diameter")
sketch2.setExpression("Constraints[59]", "Params.sketch2_diameter2")
pad2 = body.newObject("PartDesign::Pad", "Pad001")
pad2.Profile = sketch2
pad2.setExpression("Length", "Params.pad2_length")
pad2.Midplane = True

# Sketch on XZ plane
sketch3 = body.newObject("Sketcher::SketchObject", "Sketch002")
sketch3.AttachmentSupport = (doc.getObject("XZ_Plane"), [""])
sketch3.MapMode = "FlatFace"
sketch3.addGeometry([
    Part.ArcOfCircle(Part.Circle(Vector(-178, 0, 0), Vector(0, 0, 1), 12), math.radians(-63), math.radians(63)),  # 0
    Part.LineSegment(Vector(-172, 11, 0), Vector(-158, 11, 0)),  # 1
    Part.ArcOfCircle(Part.Circle(Vector(-152, 0, 0), Vector(0, 0, 1), 12), math.radians(117), math.radians(243)),  # 2
    Part.LineSegment(Vector(-158, -11, 0), Vector(-172, -11, 0)),  # 3
    Part.ArcOfCircle(Part.Circle(Vector(-152, 0, 0), Vector(0, 0, 1), 12), math.radians(-63), math.radians(63)),  # 4
    Part.LineSegment(Vector(-147, 11, 0), Vector(-132, 11, 0)),  # 5
    Part.ArcOfCircle(Part.Circle(Vector(-127, 0, 0), Vector(0, 0, 1), 12), math.radians(117), math.radians(243)),  # 6
    Part.LineSegment(Vector(-132, -11, 0), Vector(-147, -11, 0)),  # 7
    Part.ArcOfCircle(Part.Circle(Vector(-127, 0, 0), Vector(0, 0, 1), 12), math.radians(-63), math.radians(63)),  # 8
    Part.LineSegment(Vector(-122, 11, 0), Vector(-107, 11, 0)),  # 9
    Part.ArcOfCircle(Part.Circle(Vector(-102, 0, 0), Vector(0, 0, 1), 12), math.radians(117), math.radians(243)),  # 10
    Part.LineSegment(Vector(-107, -11, 0), Vector(-122, -11, 0)),  # 11
    Part.LineSegment(Vector(158, 11, 0), Vector(172, 11, 0)),  # 12
    Part.ArcOfCircle(Part.Circle(Vector(178, 0, 0), Vector(0, 0, 1), 12), math.radians(117), math.radians(243)),  # 13
    Part.LineSegment(Vector(172, -11, 0), Vector(158, -11, 0)),  # 14
    Part.ArcOfCircle(Part.Circle(Vector(152, 0, 0), Vector(0, 0, 1), 12), math.radians(-63), math.radians(63)),  # 15
    Part.ArcOfCircle(Part.Circle(Vector(-102, 0, 0), Vector(0, 0, 1), 12), math.radians(-63), math.radians(63)),  # 16
    Part.LineSegment(Vector(-96, 11, 0), Vector(-82, 11, 0)),  # 17
    Part.ArcOfCircle(Part.Circle(Vector(-76, 0, 0), Vector(0, 0, 1), 12), math.radians(117), math.radians(243)),  # 18
    Part.LineSegment(Vector(-82, -11, 0), Vector(-96, -11, 0)),  # 19
    Part.LineSegment(Vector(132, 11, 0), Vector(147, 11, 0)),  # 20
    Part.ArcOfCircle(Part.Circle(Vector(152, 0, 0), Vector(0, 0, 1), 12), math.radians(117), math.radians(243)),  # 21
    Part.LineSegment(Vector(147, -11, 0), Vector(132, -11, 0)),  # 22
    Part.ArcOfCircle(Part.Circle(Vector(127, 0, 0), Vector(0, 0, 1), 12), math.radians(-63), math.radians(63)),  # 23
    Part.ArcOfCircle(Part.Circle(Vector(-76, 0, 0), Vector(0, 0, 1), 12), math.radians(-63), math.radians(63)),  # 24
    Part.LineSegment(Vector(-71, 11, 0), Vector(-56, 11, 0)),  # 25
    Part.ArcOfCircle(Part.Circle(Vector(-51, 0, 0), Vector(0, 0, 1), 12), math.radians(117), math.radians(243)),  # 26
    Part.LineSegment(Vector(-56, -11, 0), Vector(-71, -11, 0)),  # 27
    Part.LineSegment(Vector(107, 11, 0), Vector(122, 11, 0)),  # 28
    Part.ArcOfCircle(Part.Circle(Vector(127, 0, 0), Vector(0, 0, 1), 12), math.radians(117), math.radians(243)),  # 29
    Part.LineSegment(Vector(122, -11, 0), Vector(107, -11, 0)),  # 30
    Part.ArcOfCircle(Part.Circle(Vector(102, 0, 0), Vector(0, 0, 1), 12), math.radians(-63), math.radians(63)),  # 31
    Part.ArcOfCircle(Part.Circle(Vector(-51, 0, 0), Vector(0, 0, 1), 12), math.radians(-63), math.radians(63)),  # 32
    Part.LineSegment(Vector(-45, 11, 0), Vector(-31, 11, 0)),  # 33
    Part.ArcOfCircle(Part.Circle(Vector(-25, 0, 0), Vector(0, 0, 1), 12), math.radians(117), math.radians(243)),  # 34
    Part.LineSegment(Vector(-31, -11, 0), Vector(-45, -11, 0)),  # 35
    Part.LineSegment(Vector(82, 11, 0), Vector(96, 11, 0)),  # 36
    Part.ArcOfCircle(Part.Circle(Vector(102, 0, 0), Vector(0, 0, 1), 12), math.radians(117), math.radians(243)),  # 37
    Part.LineSegment(Vector(96, -11, 0), Vector(82, -11, 0)),  # 38
    Part.ArcOfCircle(Part.Circle(Vector(76, 0, 0), Vector(0, 0, 1), 12), math.radians(-63), math.radians(63)),  # 39
    Part.ArcOfCircle(Part.Circle(Vector(-25, 0, 0), Vector(0, 0, 1), 12), math.radians(-63), math.radians(63)),  # 40
    Part.LineSegment(Vector(-20, 11, 0), Vector(-5, 11, 0)),  # 41
    Part.ArcOfCircle(Part.Circle(Vector(0, 0, 0), Vector(0, 0, 1), 12), math.radians(117), math.radians(243)),  # 42
    Part.LineSegment(Vector(-5, -11, 0), Vector(-20, -11, 0)),  # 43
    Part.LineSegment(Vector(56, 11, 0), Vector(71, 11, 0)),  # 44
    Part.ArcOfCircle(Part.Circle(Vector(76, 0, 0), Vector(0, 0, 1), 12), math.radians(117), math.radians(243)),  # 45
    Part.LineSegment(Vector(71, -11, 0), Vector(56, -11, 0)),  # 46
    Part.ArcOfCircle(Part.Circle(Vector(51, 0, 0), Vector(0, 0, 1), 12), math.radians(-63), math.radians(63)),  # 47
    Part.ArcOfCircle(Part.Circle(Vector(0, 0, 0), Vector(0, 0, 1), 12), math.radians(-63), math.radians(63)),  # 48
    Part.LineSegment(Vector(5, 11, 0), Vector(20, 11, 0)),  # 49
    Part.ArcOfCircle(Part.Circle(Vector(25, 0, 0), Vector(0, 0, 1), 12), math.radians(117), math.radians(243)),  # 50
    Part.LineSegment(Vector(20, -11, 0), Vector(5, -11, 0)),  # 51
    Part.LineSegment(Vector(31, 11, 0), Vector(45, 11, 0)),  # 52
    Part.ArcOfCircle(Part.Circle(Vector(51, 0, 0), Vector(0, 0, 1), 12), math.radians(117), math.radians(243)),  # 53
    Part.LineSegment(Vector(45, -11, 0), Vector(31, -11, 0)),  # 54
    Part.ArcOfCircle(Part.Circle(Vector(25, 0, 0), Vector(0, 0, 1), 12), math.radians(-63), math.radians(63)),  # 55
], False)
sketch3.addConstraint([
    Sketcher.Constraint("Coincident", 0, 2, 1, 1),
    Sketcher.Constraint("Coincident", 1, 2, 2, 1),
    Sketcher.Constraint("Coincident", 2, 2, 3, 1),
    Sketcher.Constraint("Coincident", 3, 2, 0, 1),
    Sketcher.Constraint("Coincident", 4, 2, 5, 1),
    Sketcher.Constraint("Coincident", 5, 2, 6, 1),
    Sketcher.Constraint("Coincident", 6, 2, 7, 1),
    Sketcher.Constraint("Coincident", 7, 2, 4, 1),
    Sketcher.Constraint("Coincident", 8, 2, 9, 1),
    Sketcher.Constraint("Coincident", 9, 2, 10, 1),
    Sketcher.Constraint("Coincident", 10, 2, 11, 1),
    Sketcher.Constraint("Coincident", 11, 2, 8, 1),
    Sketcher.Constraint("Coincident", 12, 2, 13, 1),
    Sketcher.Constraint("Coincident", 13, 2, 14, 1),
    Sketcher.Constraint("Coincident", 14, 2, 15, 1),
    Sketcher.Constraint("Coincident", 15, 2, 12, 1),
    Sketcher.Constraint("Coincident", 16, 2, 17, 1),
    Sketcher.Constraint("Coincident", 17, 2, 18, 1),
    Sketcher.Constraint("Coincident", 18, 2, 19, 1),
    Sketcher.Constraint("Coincident", 19, 2, 16, 1),
    Sketcher.Constraint("Coincident", 20, 2, 21, 1),
    Sketcher.Constraint("Coincident", 21, 2, 22, 1),
    Sketcher.Constraint("Coincident", 22, 2, 23, 1),
    Sketcher.Constraint("Coincident", 23, 2, 20, 1),
    Sketcher.Constraint("Coincident", 24, 2, 25, 1),
    Sketcher.Constraint("Coincident", 25, 2, 26, 1),
    Sketcher.Constraint("Coincident", 26, 2, 27, 1),
    Sketcher.Constraint("Coincident", 27, 2, 24, 1),
    Sketcher.Constraint("Coincident", 28, 2, 29, 1),
    Sketcher.Constraint("Coincident", 29, 2, 30, 1),
    Sketcher.Constraint("Coincident", 30, 2, 31, 1),
    Sketcher.Constraint("Coincident", 31, 2, 28, 1),
    Sketcher.Constraint("Coincident", 32, 2, 33, 1),
    Sketcher.Constraint("Coincident", 33, 2, 34, 1),
    Sketcher.Constraint("Coincident", 34, 2, 35, 1),
    Sketcher.Constraint("Coincident", 35, 2, 32, 1),
    Sketcher.Constraint("Coincident", 36, 2, 37, 1),
    Sketcher.Constraint("Coincident", 37, 2, 38, 1),
    Sketcher.Constraint("Coincident", 38, 2, 39, 1),
    Sketcher.Constraint("Coincident", 39, 2, 36, 1),
    Sketcher.Constraint("Coincident", 40, 2, 41, 1),
    Sketcher.Constraint("Coincident", 41, 2, 42, 1),
    Sketcher.Constraint("Coincident", 42, 2, 43, 1),
    Sketcher.Constraint("Coincident", 43, 2, 40, 1),
    Sketcher.Constraint("Coincident", 44, 2, 45, 1),
    Sketcher.Constraint("Coincident", 45, 2, 46, 1),
    Sketcher.Constraint("Coincident", 46, 2, 47, 1),
    Sketcher.Constraint("Coincident", 47, 2, 44, 1),
    Sketcher.Constraint("Coincident", 48, 2, 49, 1),
    Sketcher.Constraint("Coincident", 49, 2, 50, 1),
    Sketcher.Constraint("Coincident", 50, 2, 51, 1),
    Sketcher.Constraint("Coincident", 51, 2, 48, 1),
    Sketcher.Constraint("Coincident", 52, 2, 53, 1),
    Sketcher.Constraint("Coincident", 53, 2, 54, 1),
    Sketcher.Constraint("Coincident", 54, 2, 55, 1),
    Sketcher.Constraint("Coincident", 55, 2, 52, 1),
    Sketcher.Constraint("Horizontal", 1),
    Sketcher.Constraint("Horizontal", 3),
    Sketcher.Constraint("Horizontal", 5),
    Sketcher.Constraint("Horizontal", 7),
    Sketcher.Constraint("Horizontal", 9),
    Sketcher.Constraint("Horizontal", 11),
    Sketcher.Constraint("Horizontal", 12),
    Sketcher.Constraint("Horizontal", 14),
    Sketcher.Constraint("Horizontal", 17),
    Sketcher.Constraint("Horizontal", 19),
    Sketcher.Constraint("Horizontal", 20),
    Sketcher.Constraint("Horizontal", 22),
    Sketcher.Constraint("Horizontal", 25),
    Sketcher.Constraint("Horizontal", 27),
    Sketcher.Constraint("Horizontal", 28),
    Sketcher.Constraint("Horizontal", 30),
    Sketcher.Constraint("Horizontal", 33),
    Sketcher.Constraint("Horizontal", 35),
    Sketcher.Constraint("Horizontal", 36),
    Sketcher.Constraint("Horizontal", 38),
    Sketcher.Constraint("Horizontal", 41),
    Sketcher.Constraint("Horizontal", 43),
    Sketcher.Constraint("Horizontal", 44),
    Sketcher.Constraint("Horizontal", 46),
    Sketcher.Constraint("Horizontal", 49),
    Sketcher.Constraint("Horizontal", 51),
    Sketcher.Constraint("Horizontal", 52),
    Sketcher.Constraint("Horizontal", 54),
    Sketcher.Constraint("Coincident", 42, 3, -1, 1),
    Sketcher.Constraint("Coincident", 48, 3, -1, 1),
    Sketcher.Constraint("Coincident", 4, 3, 2, 3),
    Sketcher.Constraint("Coincident", 8, 3, 6, 3),
    Sketcher.Constraint("Coincident", 16, 3, 10, 3),
    Sketcher.Constraint("Coincident", 21, 3, 15, 3),
    Sketcher.Constraint("Coincident", 24, 3, 18, 3),
    Sketcher.Constraint("Coincident", 29, 3, 23, 3),
    Sketcher.Constraint("Coincident", 32, 3, 26, 3),
    Sketcher.Constraint("Coincident", 37, 3, 31, 3),
    Sketcher.Constraint("Coincident", 40, 3, 34, 3),
    Sketcher.Constraint("Coincident", 45, 3, 39, 3),
    Sketcher.Constraint("Coincident", 53, 3, 47, 3),
    Sketcher.Constraint("Coincident", 55, 3, 50, 3),
    Sketcher.Constraint("Equal", 0, 2),
    Sketcher.Constraint("Equal", 2, 4),
    Sketcher.Constraint("Equal", 4, 6),
    Sketcher.Constraint("Equal", 6, 8),
    Sketcher.Constraint("Equal", 8, 10),
    Sketcher.Constraint("Equal", 10, 13),
    Sketcher.Constraint("Equal", 13, 15),
    Sketcher.Constraint("Equal", 15, 16),
    Sketcher.Constraint("Equal", 16, 18),
    Sketcher.Constraint("Equal", 18, 21),
    Sketcher.Constraint("Equal", 21, 23),
    Sketcher.Constraint("Equal", 23, 24),
    Sketcher.Constraint("Equal", 24, 26),
    Sketcher.Constraint("Equal", 26, 29),
    Sketcher.Constraint("Equal", 29, 31),
    Sketcher.Constraint("Equal", 31, 32),
    Sketcher.Constraint("Equal", 32, 34),
    Sketcher.Constraint("Equal", 34, 37),
    Sketcher.Constraint("Equal", 37, 39),
    Sketcher.Constraint("Equal", 39, 40),
    Sketcher.Constraint("Equal", 40, 42),
    Sketcher.Constraint("Equal", 42, 45),
    Sketcher.Constraint("Equal", 45, 47),
    Sketcher.Constraint("Equal", 47, 48),
    Sketcher.Constraint("Equal", 48, 50),
    Sketcher.Constraint("Equal", 50, 53),
    Sketcher.Constraint("Equal", 53, 55),
    Sketcher.Constraint("Symmetric", 0, 3, 13, 3, -1, 1),
    Sketcher.Constraint("Symmetric", 2, 3, 15, 3, -1, 1),
    Sketcher.Constraint("Symmetric", 6, 3, 23, 3, -1, 1),
    Sketcher.Constraint("Symmetric", 10, 3, 31, 3, -1, 1),
    Sketcher.Constraint("Symmetric", 18, 3, 39, 3, -1, 1),
    Sketcher.Constraint("Symmetric", 26, 3, 47, 3, -1, 1),
    Sketcher.Constraint("Symmetric", 34, 3, 50, 3, -1, 1),
    Sketcher.Constraint("Symmetric", 0, 2, 12, 2, -2),
    Sketcher.Constraint("Symmetric", 2, 2, 14, 2, -2),
    Sketcher.Constraint("Symmetric", 6, 2, 22, 2, -2),
    Sketcher.Constraint("Symmetric", 10, 2, 30, 2, -2),
    Sketcher.Constraint("Symmetric", 18, 2, 38, 2, -2),
    Sketcher.Constraint("Symmetric", 26, 2, 46, 2, -2),
    Sketcher.Constraint("Symmetric", 40, 2, 49, 2, -2),
    Sketcher.Constraint("Horizontal", 1, 2, 4, 2),
    Sketcher.Constraint("Horizontal", 3, 2, 6, 2),
    Sketcher.Constraint("Horizontal", 5, 2, 8, 2),
    Sketcher.Constraint("Horizontal", 7, 2, 10, 2),
    Sketcher.Constraint("Horizontal", 15, 2, 16, 2),
    Sketcher.Constraint("Horizontal", 14, 2, 18, 2),
    Sketcher.Constraint("Horizontal", 17, 2, 20, 2),
    Sketcher.Constraint("Horizontal", 23, 2, 24, 2),
    Sketcher.Constraint("Horizontal", 22, 2, 26, 2),
    Sketcher.Constraint("Horizontal", 25, 2, 28, 2),
    Sketcher.Constraint("Horizontal", 31, 2, 32, 2),
    Sketcher.Constraint("Horizontal", 30, 2, 34, 2),
    Sketcher.Constraint("Horizontal", 33, 2, 36, 2),
    Sketcher.Constraint("Horizontal", 39, 2, 40, 2),
    Sketcher.Constraint("Horizontal", 38, 2, 42, 2),
    Sketcher.Constraint("Horizontal", 41, 2, 44, 2),
    Sketcher.Constraint("Horizontal", 46, 2, 50, 2),
    Sketcher.Constraint("Horizontal", 49, 2, 52, 2),
    Sketcher.Constraint("Horizontal", 51, 2, 53, 2),
    Sketcher.Constraint("Vertical", 1, 2, 2, 2),
    Sketcher.Constraint("Equal", 3, 5),
    Sketcher.Constraint("Equal", 7, 9),
    Sketcher.Constraint("Equal", 14, 17),
    Sketcher.Constraint("Equal", 22, 25),
    Sketcher.Constraint("Equal", 30, 33),
    Sketcher.Constraint("Equal", 38, 41),
    Sketcher.Constraint("DistanceX", 34, 3, -1, 1, Q("1 in")),
    Sketcher.Constraint("Radius", 0, Q("0.475 in")),
    Sketcher.Constraint("DistanceY", -1, 1, 0, 2, Q("0.425 in")),
])
sketch3.setExpression("Constraints[166]", "Params.sketch3_radius")
pad3 = body.newObject("PartDesign::Pad", "Pad002")
pad3.Profile = sketch3
pad3.setExpression("Length", "Params.pad3_length")
pad3.Midplane = True
doc.recompute()

fillet = body.newObject("PartDesign::Fillet", "Fillet")
fillet.Base = (pad3, edges_at(pad3, [
    (172.412, 7.303, 10.795),
    (157.788, 7.303, 10.795),
    (172.412, 7.303, -10.795),
    (157.788, 7.303, -10.795),
    (147.012, 7.303, -10.795),
    (147.012, 7.303, 10.795),
    (121.612, 7.303, 10.795),
    (96.212, 7.303, 10.795),
    (70.812, 7.303, 10.795),
    (45.412, 7.303, 10.795),
    (20.012, 7.303, 10.795),
    (-5.388, 7.303, 10.795),
    (-30.788, 7.303, 10.795),
    (-56.188, 7.303, 10.795),
    (-81.588, 7.303, 10.795),
    (-106.988, 7.303, 10.795),
    (-132.388, 7.303, 10.795),
    (-157.788, 7.303, 10.795),
    (-172.412, 7.303, 10.795),
    (-147.012, 7.303, 10.795),
    (-121.612, 7.303, 10.795),
    (-96.212, 7.303, 10.795),
    (-70.812, 7.303, 10.795),
    (-45.412, 7.303, 10.795),
    (-20.012, 7.303, 10.795),
    (5.388, 7.303, 10.795),
    (30.788, 7.303, 10.795),
    (56.188, 7.303, 10.795),
    (81.588, 7.303, 10.795),
    (106.988, 7.303, 10.795),
    (132.388, 7.303, 10.795),
    (121.612, 7.303, -10.795),
    (96.212, 7.303, -10.795),
    (70.812, 7.303, -10.795),
    (45.412, 7.303, -10.795),
    (20.012, 7.303, -10.795),
    (-5.388, 7.303, -10.795),
    (-30.788, 7.303, -10.795),
    (-56.188, 7.303, -10.795),
    (-81.588, 7.303, -10.795),
    (-106.988, 7.303, -10.795),
    (-132.388, 7.303, -10.795),
    (-157.788, 7.303, -10.795),
    (-172.412, 7.303, -10.795),
    (-147.012, 7.303, -10.795),
    (-96.212, 7.303, -10.795),
    (-70.812, 7.303, -10.795),
    (-45.412, 7.303, -10.795),
    (-20.012, 7.303, -10.795),
    (5.388, 7.303, -10.795),
    (30.788, 7.303, -10.795),
    (56.188, 7.303, -10.795),
    (81.588, 7.303, -10.795),
    (106.988, 7.303, -10.795),
    (132.388, 7.303, -10.795),
]))
fillet.setExpression("Radius", "Params.fillet_radius")

doc.recompute()
